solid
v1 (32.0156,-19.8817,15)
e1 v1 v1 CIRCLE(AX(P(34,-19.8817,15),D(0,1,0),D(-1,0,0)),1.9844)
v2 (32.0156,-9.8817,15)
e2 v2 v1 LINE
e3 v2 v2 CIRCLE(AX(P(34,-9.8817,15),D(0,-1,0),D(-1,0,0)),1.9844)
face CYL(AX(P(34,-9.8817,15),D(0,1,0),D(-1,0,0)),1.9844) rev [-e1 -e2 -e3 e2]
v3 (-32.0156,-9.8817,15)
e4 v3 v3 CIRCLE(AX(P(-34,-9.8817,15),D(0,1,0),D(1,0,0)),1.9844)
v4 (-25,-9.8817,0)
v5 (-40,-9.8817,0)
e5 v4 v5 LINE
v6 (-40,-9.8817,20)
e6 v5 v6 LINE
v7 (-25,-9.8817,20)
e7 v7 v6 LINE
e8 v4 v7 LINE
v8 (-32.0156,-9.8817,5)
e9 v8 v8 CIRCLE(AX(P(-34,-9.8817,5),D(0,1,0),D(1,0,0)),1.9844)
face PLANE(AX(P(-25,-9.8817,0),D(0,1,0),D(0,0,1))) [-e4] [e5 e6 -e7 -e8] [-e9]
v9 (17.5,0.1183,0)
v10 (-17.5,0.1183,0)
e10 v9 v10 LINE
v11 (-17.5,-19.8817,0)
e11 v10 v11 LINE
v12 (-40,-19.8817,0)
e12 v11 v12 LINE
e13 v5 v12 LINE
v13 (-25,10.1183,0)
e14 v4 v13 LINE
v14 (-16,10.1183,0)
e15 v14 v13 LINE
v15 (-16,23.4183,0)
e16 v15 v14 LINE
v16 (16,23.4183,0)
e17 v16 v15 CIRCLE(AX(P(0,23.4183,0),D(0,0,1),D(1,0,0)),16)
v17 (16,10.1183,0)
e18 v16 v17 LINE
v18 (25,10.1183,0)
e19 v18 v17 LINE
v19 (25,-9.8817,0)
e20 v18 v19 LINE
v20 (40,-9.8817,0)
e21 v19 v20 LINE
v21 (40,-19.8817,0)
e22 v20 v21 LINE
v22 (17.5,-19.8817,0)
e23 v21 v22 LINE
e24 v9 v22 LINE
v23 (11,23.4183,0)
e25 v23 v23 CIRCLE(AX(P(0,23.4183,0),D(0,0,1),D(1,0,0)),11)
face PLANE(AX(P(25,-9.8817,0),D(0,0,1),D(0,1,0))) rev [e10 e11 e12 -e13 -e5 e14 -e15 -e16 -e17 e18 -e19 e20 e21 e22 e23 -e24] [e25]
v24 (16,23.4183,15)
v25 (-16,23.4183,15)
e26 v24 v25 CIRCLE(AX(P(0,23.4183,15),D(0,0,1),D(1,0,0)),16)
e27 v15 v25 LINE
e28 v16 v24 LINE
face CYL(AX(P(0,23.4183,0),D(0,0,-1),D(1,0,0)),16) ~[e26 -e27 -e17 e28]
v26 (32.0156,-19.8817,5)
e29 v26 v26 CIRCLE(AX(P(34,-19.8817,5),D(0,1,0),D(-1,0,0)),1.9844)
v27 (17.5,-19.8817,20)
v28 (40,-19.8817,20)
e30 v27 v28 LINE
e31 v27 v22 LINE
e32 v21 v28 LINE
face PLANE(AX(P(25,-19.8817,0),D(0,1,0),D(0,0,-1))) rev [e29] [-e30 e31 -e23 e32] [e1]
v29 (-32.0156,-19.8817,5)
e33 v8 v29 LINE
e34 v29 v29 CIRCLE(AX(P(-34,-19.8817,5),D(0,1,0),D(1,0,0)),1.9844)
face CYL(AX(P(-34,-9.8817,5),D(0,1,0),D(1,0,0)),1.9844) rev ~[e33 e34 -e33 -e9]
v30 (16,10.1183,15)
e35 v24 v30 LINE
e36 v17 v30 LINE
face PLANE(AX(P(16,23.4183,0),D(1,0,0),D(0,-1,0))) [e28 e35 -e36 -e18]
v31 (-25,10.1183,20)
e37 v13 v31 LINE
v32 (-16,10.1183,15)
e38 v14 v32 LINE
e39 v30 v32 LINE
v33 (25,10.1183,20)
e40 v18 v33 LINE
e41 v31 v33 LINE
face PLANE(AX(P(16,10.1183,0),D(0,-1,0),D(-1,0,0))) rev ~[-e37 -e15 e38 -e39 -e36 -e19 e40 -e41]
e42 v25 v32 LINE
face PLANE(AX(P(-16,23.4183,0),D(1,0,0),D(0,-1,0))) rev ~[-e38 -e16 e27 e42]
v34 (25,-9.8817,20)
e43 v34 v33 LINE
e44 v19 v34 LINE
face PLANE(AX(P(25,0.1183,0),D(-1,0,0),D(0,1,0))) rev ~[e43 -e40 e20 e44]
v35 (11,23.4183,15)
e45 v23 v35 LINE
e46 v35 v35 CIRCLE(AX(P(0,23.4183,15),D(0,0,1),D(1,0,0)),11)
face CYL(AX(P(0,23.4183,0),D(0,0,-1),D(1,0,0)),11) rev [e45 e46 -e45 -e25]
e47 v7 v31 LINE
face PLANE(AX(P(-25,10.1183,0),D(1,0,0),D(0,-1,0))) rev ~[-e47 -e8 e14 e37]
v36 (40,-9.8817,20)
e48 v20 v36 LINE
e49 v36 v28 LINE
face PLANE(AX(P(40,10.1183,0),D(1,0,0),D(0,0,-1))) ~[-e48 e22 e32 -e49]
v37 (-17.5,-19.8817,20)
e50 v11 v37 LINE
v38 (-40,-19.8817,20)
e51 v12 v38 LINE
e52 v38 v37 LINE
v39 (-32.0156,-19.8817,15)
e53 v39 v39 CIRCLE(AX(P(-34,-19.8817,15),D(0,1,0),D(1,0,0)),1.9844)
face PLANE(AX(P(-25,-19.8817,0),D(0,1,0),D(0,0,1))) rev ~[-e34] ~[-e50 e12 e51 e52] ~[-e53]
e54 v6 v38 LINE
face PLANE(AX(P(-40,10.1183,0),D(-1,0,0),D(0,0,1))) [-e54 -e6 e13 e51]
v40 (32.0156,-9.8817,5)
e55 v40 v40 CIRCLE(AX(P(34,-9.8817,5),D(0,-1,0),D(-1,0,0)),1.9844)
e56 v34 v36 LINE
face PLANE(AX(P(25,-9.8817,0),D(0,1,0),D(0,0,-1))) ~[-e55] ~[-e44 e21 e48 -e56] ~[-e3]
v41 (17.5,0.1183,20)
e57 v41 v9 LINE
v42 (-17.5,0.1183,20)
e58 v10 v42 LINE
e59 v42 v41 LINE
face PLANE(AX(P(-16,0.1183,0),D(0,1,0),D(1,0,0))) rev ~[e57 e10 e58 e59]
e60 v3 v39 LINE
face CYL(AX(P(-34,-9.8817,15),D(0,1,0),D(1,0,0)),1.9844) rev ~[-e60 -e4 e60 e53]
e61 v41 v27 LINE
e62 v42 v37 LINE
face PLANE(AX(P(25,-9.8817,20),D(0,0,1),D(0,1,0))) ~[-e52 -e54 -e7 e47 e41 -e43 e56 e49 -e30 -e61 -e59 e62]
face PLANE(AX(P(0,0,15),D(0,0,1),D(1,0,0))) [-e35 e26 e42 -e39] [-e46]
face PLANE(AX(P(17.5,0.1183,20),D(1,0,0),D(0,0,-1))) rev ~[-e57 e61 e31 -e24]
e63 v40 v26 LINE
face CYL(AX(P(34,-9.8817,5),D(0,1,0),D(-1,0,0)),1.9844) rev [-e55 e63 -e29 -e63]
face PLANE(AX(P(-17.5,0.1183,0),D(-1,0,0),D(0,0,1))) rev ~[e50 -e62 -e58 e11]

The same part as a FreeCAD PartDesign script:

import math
import FreeCAD as App
import Part
import Sketcher

V = App.Vector


def add_polygon(sketch, points):
    """Adds a closed chain of lines whose ends are joined by coincident constraints."""
    first, n = sketch.GeometryCount, len(points)
    for a, b in zip(points, points[1:] + points[:1]):
        sketch.addGeometry(Part.LineSegment(App.Vector(*a, 0), App.Vector(*b, 0)), False)
    for i in range(n):
        sketch.addConstraint(Sketcher.Constraint("Coincident", first + i, 2, first + (i + 1) % n, 1))

doc = App.newDocument("Part")
params = doc.addObject("Spreadsheet::Sheet", "Params")
for row, (alias, value) in enumerate([
    ("sketch1_width", "50 mm"),
    ("sketch1_height", "10 mm"),
    ("pad1_length", "20 mm"),
    ("sketch2_diameter", "22 mm"),
    ("sketch2_radius", "16 mm"),
    ("sketch2_height", "13.3 mm"),
    ("pad2_length", "15 mm"),
    ("sketch3_height", "20 mm"),
    ("sketch3_width", "7.5 mm"),
    ("pad3_length", "20 mm"),
    ("sketch4_width", "10 mm"),
    ("sketch4_height", "20 mm"),
    ("pad4_length", "15 mm"),
], start=1):
    params.set(f"A{row}", alias)
    params.set(f"B{row}", "=" + value)
    params.setAlias(f"B{row}", alias)

body = doc.addObject("PartDesign::Body", "Body")

# Sketch on XY plane
sketch1 = doc.addObject("Sketcher::SketchObject", "Sketch")
body.addObject(sketch1)
sketch1.AttachmentSupport = (doc.XY_Plane, [""])
sketch1.MapMode = "FlatFace"
add_polygon(sketch1, [(-25, 10), (-25, 0), (25, 0), (25, 10)])  # lines 0-3
sketch1.addConstraint(Sketcher.Constraint("Vertical", 0))
sketch1.addConstraint(Sketcher.Constraint("Horizontal", 1))
sketch1.addConstraint(Sketcher.Constraint("Vertical", 2))
sketch1.addConstraint(Sketcher.Constraint("Horizontal", 3))
sketch1.addConstraint(Sketcher.Constraint("DistanceX", 1, 1, 1, 2, 50.0))
sketch1.addConstraint(Sketcher.Constraint("DistanceY", 0, 2, 0, 1, 10.0))
sketch1.addConstraint(Sketcher.Constraint("DistanceX", 0, 2, -1, 1, 25.0))
sketch1.addConstraint(Sketcher.Constraint("DistanceY", -1, 1, 0, 2, 0.1183))
sketch1.setExpression("Constraints[8]", "Params.sketch1_width")
sketch1.setExpression("Constraints[9]", "Params.sketch1_height")
pad1 = doc.addObject("PartDesign::Pad", "Pad")
body.addObject(pad1)
pad1.Profile = sketch1
pad1.setExpression("Length", "Params.pad1_length")

# Sketch on XY plane
sketch2 = doc.addObject("Sketcher::SketchObject", "Sketch001")
body.addObject(sketch2)
sketch2.AttachmentSupport = (doc.XY_Plane, [""])
sketch2.MapMode = "FlatFace"
sketch2.addGeometry(Part.LineSegment(V(16, 10, 0), V(16, 23, 0)), False)
sketch2.addGeometry(Part.ArcOfCircle(Part.Circle(V(0, 23, 0), V(0, 0, 1), 16), math.radians(0), math.radians(180)), False)
sketch2.addGeometry(Part.LineSegment(V(-16, 23, 0), V(-16, 10, 0)), False)
sketch2.addGeometry(Part.LineSegment(V(-16, 10, 0), V(16, 10, 0)), False)
sketch2.addGeometry(Part.Circle(V(0, 23, 0), V(0, 0, 1), 11), False)
sketch2.addConstraint(Sketcher.Constraint("Tangent", 0, 2, 1, 1))
sketch2.addConstraint(Sketcher.Constraint("Tangent", 1, 2, 2, 1))
sketch2.addConstraint(Sketcher.Constraint("Coincident", 2, 2, 3, 1))
sketch2.addConstraint(Sketcher.Constraint("Coincident", 3, 2, 0, 1))
sketch2.addConstraint(Sketcher.Constraint("Vertical", 0))
sketch2.addConstraint(Sketcher.Constraint("Vertical", 2))
sketch2.addConstraint(Sketcher.Constraint("Horizontal", 3))
sketch2.addConstraint(Sketcher.Constraint("Coincident", 4, 3, 1, 3))
sketch2.addConstraint(Sketcher.Constraint("PointOnObject", 1, 3, -2))
sketch2.addConstraint(Sketcher.Constraint("Diameter", 4, 22.0))
sketch2.addConstraint(Sketcher.Constraint("Radius", 1, 16.0))
sketch2.addConstraint(Sketcher.Constraint("DistanceY", 0, 1, 0, 2, 13.3))
sketch2.addConstraint(Sketcher.Constraint("DistanceY", -1, 1, 1, 3, 23.4183))
sketch2.setExpression("Constraints[9]", "Params.sketch2_diameter")
sketch2.setExpression("Constraints[10]", "Params.sketch2_radius")
sketch2.setExpression("Constraints[11]", "Params.sketch2_height")
pad2 = doc.addObject("PartDesign::Pad", "Pad001")
body.addObject(pad2)
pad2.Profile = sketch2
pad2.setExpression("Length", "Params.pad2_length")

# Sketch on XZ plane
sketch3 = doc.addObject("Sketcher::SketchObject", "Sketch002")
body.addObject(sketch3)
sketch3.AttachmentSupport = (doc.XZ_Plane, [""])
sketch3.MapMode = "FlatFace"
sketch3.AttachmentOffset = App.Placement(V(0, 0, -0.1183), App.Rotation())
add_polygon(sketch3, [(-18, 20), (-25, 20), (-25, 0), (-18, 0)])  # lines 0-3
add_polygon(sketch3, [(25, 20), (18, 20), (18, 0), (25, 0)])  # lines 4-7
sketch3.addConstraint(Sketcher.Constraint("Horizontal", 0))
sketch3.addConstraint(Sketcher.Constraint("Vertical", 1))
sketch3.addConstraint(Sketcher.Constraint("Horizontal", 2))
sketch3.addConstraint(Sketcher.Constraint("Vertical", 3))
sketch3.addConstraint(Sketcher.Constraint("Horizontal", 4))
sketch3.addConstraint(Sketcher.Constraint("Vertical", 5))
sketch3.addConstraint(Sketcher.Constraint("Horizontal", 6))
sketch3.addConstraint(Sketcher.Constraint("Vertical", 7))
sketch3.addConstraint(Sketcher.Constraint("Symmetric", 2, 2, 5, 2, -1, 1))
sketch3.addConstraint(Sketcher.Constraint("Symmetric", 1, 2, 6, 2, -2))
sketch3.addConstraint(Sketcher.Constraint("Horizontal", 3, 2, 4, 2))
sketch3.addConstraint(Sketcher.Constraint("DistanceX", 3, 2, 4, 2, 35.0))
sketch3.addConstraint(Sketcher.Constraint("DistanceY", 1, 2, 1, 1, 20.0))
sketch3.addConstraint(Sketcher.Constraint("DistanceX", 0, 2, 0, 1, 7.5))
sketch3.setExpression("Constraints[20]", "Params.sketch3_height")
sketch3.setExpression("Constraints[21]", "Params.sketch3_width")
pad3 = doc.addObject("PartDesign::Pad", "Pad002")
body.addObject(pad3)
pad3.Profile = sketch3
pad3.setExpression("Length", "Params.pad3_length")

# Sketch on YZ plane
sketch4 = doc.addObject("Sketcher::SketchObject", "Sketch003")
body.addObject(sketch4)
sketch4.AttachmentSupport = (doc.YZ_Plane, [""])
sketch4.MapMode = "FlatFace"
sketch4.AttachmentOffset = App.Placement(V(0, 0, -25), App.Rotation())
add_polygon(sketch4, [(-10, 20), (-10, 0), (-20, 0), (-20, 20)])  # lines 0-3
sketch4.addConstraint(Sketcher.Constraint("Vertical", 0))
sketch4.addConstraint(Sketcher.Constraint("Horizontal", 1))
sketch4.addConstraint(Sketcher.Constraint("Vertical", 2))
sketch4.addConstraint(Sketcher.Constraint("Horizontal", 3))
sketch4.addConstraint(Sketcher.Constraint("PointOnObject", 0, 2, -1))
sketch4.addConstraint(Sketcher.Constraint("DistanceX", 1, 2, 1, 1, 10.0))
sketch4.addConstraint(Sketcher.Constraint("DistanceY", 0, 2, 0, 1, 20.0))
sketch4.addConstraint(Sketcher.Constraint("DistanceX", 0, 2, -1, 1, 9.8817))
sketch4.setExpression("Constraints[9]", "Params.sketch4_width")
sketch4.setExpression("Constraints[10]", "Params.sketch4_height")
pad4 = doc.addObject("PartDesign::Pad", "Pad003")
body.addObject(pad4)
pad4.Profile = sketch4
pad4.setExpression("Length", "Params.pad4_length")
pad4.Reversed = True
doc.recompute()

mirrored = doc.addObject("PartDesign::Mirrored", "Mirrored")
body.addObject(mirrored)
mirrored.Originals = [pad4]
mirrored.MirrorPlane = (doc.YZ_Plane, [""])
body.Tip = mirrored

# Sketch on XZ plane
sketch5 = doc.addObject("Sketcher::SketchObject", "Sketch004")
body.addObject(sketch5)
sketch5.AttachmentSupport = (doc.XZ_Plane, [""])
sketch5.MapMode = "FlatFace"
sketch5.AttachmentOffset = App.Placement(V(0, 0, 9.8817), App.Rotation())
sketch5.addGeometry(Part.Circle(V(-34, 5, 0), V(0, 0, 1), 2), False)
sketch5.addGeometry(Part.Circle(V(-34, 15, 0), V(0, 0, 1), 2), False)
sketch5.addConstraint(Sketcher.Constraint("Equal", 0, 1))
sketch5.addConstraint(Sketcher.Constraint("Vertical", 0, 3, 1, 3))
sketch5.addConstraint(Sketcher.Constraint("DistanceY", -1, 1, 0, 3, 5.0))
sketch5.addConstraint(Sketcher.Constraint("Diameter", 0, 3.9688))
sketch5.addConstraint(Sketcher.Constraint("DistanceX", 0, 3, -1, 1, 34.0))
sketch5.addConstraint(Sketcher.Constraint("DistanceY", -1, 1, 1, 3, 15.0))
pocket1 = doc.addObject("PartDesign::Pocket", "Pocket")
body.addObject(pocket1)
pocket1.Profile = sketch5
pocket1.Type = "ThroughAll"
pocket1.Reversed = True
doc.recompute()

mirrored2 = doc.addObject("PartDesign::Mirrored", "Mirrored001")
body.addObject(mirrored2)
mirrored2.Originals = [pocket1]
mirrored2.MirrorPlane = (doc.YZ_Plane, [""])
body.Tip = mirrored2

doc.recompute()
